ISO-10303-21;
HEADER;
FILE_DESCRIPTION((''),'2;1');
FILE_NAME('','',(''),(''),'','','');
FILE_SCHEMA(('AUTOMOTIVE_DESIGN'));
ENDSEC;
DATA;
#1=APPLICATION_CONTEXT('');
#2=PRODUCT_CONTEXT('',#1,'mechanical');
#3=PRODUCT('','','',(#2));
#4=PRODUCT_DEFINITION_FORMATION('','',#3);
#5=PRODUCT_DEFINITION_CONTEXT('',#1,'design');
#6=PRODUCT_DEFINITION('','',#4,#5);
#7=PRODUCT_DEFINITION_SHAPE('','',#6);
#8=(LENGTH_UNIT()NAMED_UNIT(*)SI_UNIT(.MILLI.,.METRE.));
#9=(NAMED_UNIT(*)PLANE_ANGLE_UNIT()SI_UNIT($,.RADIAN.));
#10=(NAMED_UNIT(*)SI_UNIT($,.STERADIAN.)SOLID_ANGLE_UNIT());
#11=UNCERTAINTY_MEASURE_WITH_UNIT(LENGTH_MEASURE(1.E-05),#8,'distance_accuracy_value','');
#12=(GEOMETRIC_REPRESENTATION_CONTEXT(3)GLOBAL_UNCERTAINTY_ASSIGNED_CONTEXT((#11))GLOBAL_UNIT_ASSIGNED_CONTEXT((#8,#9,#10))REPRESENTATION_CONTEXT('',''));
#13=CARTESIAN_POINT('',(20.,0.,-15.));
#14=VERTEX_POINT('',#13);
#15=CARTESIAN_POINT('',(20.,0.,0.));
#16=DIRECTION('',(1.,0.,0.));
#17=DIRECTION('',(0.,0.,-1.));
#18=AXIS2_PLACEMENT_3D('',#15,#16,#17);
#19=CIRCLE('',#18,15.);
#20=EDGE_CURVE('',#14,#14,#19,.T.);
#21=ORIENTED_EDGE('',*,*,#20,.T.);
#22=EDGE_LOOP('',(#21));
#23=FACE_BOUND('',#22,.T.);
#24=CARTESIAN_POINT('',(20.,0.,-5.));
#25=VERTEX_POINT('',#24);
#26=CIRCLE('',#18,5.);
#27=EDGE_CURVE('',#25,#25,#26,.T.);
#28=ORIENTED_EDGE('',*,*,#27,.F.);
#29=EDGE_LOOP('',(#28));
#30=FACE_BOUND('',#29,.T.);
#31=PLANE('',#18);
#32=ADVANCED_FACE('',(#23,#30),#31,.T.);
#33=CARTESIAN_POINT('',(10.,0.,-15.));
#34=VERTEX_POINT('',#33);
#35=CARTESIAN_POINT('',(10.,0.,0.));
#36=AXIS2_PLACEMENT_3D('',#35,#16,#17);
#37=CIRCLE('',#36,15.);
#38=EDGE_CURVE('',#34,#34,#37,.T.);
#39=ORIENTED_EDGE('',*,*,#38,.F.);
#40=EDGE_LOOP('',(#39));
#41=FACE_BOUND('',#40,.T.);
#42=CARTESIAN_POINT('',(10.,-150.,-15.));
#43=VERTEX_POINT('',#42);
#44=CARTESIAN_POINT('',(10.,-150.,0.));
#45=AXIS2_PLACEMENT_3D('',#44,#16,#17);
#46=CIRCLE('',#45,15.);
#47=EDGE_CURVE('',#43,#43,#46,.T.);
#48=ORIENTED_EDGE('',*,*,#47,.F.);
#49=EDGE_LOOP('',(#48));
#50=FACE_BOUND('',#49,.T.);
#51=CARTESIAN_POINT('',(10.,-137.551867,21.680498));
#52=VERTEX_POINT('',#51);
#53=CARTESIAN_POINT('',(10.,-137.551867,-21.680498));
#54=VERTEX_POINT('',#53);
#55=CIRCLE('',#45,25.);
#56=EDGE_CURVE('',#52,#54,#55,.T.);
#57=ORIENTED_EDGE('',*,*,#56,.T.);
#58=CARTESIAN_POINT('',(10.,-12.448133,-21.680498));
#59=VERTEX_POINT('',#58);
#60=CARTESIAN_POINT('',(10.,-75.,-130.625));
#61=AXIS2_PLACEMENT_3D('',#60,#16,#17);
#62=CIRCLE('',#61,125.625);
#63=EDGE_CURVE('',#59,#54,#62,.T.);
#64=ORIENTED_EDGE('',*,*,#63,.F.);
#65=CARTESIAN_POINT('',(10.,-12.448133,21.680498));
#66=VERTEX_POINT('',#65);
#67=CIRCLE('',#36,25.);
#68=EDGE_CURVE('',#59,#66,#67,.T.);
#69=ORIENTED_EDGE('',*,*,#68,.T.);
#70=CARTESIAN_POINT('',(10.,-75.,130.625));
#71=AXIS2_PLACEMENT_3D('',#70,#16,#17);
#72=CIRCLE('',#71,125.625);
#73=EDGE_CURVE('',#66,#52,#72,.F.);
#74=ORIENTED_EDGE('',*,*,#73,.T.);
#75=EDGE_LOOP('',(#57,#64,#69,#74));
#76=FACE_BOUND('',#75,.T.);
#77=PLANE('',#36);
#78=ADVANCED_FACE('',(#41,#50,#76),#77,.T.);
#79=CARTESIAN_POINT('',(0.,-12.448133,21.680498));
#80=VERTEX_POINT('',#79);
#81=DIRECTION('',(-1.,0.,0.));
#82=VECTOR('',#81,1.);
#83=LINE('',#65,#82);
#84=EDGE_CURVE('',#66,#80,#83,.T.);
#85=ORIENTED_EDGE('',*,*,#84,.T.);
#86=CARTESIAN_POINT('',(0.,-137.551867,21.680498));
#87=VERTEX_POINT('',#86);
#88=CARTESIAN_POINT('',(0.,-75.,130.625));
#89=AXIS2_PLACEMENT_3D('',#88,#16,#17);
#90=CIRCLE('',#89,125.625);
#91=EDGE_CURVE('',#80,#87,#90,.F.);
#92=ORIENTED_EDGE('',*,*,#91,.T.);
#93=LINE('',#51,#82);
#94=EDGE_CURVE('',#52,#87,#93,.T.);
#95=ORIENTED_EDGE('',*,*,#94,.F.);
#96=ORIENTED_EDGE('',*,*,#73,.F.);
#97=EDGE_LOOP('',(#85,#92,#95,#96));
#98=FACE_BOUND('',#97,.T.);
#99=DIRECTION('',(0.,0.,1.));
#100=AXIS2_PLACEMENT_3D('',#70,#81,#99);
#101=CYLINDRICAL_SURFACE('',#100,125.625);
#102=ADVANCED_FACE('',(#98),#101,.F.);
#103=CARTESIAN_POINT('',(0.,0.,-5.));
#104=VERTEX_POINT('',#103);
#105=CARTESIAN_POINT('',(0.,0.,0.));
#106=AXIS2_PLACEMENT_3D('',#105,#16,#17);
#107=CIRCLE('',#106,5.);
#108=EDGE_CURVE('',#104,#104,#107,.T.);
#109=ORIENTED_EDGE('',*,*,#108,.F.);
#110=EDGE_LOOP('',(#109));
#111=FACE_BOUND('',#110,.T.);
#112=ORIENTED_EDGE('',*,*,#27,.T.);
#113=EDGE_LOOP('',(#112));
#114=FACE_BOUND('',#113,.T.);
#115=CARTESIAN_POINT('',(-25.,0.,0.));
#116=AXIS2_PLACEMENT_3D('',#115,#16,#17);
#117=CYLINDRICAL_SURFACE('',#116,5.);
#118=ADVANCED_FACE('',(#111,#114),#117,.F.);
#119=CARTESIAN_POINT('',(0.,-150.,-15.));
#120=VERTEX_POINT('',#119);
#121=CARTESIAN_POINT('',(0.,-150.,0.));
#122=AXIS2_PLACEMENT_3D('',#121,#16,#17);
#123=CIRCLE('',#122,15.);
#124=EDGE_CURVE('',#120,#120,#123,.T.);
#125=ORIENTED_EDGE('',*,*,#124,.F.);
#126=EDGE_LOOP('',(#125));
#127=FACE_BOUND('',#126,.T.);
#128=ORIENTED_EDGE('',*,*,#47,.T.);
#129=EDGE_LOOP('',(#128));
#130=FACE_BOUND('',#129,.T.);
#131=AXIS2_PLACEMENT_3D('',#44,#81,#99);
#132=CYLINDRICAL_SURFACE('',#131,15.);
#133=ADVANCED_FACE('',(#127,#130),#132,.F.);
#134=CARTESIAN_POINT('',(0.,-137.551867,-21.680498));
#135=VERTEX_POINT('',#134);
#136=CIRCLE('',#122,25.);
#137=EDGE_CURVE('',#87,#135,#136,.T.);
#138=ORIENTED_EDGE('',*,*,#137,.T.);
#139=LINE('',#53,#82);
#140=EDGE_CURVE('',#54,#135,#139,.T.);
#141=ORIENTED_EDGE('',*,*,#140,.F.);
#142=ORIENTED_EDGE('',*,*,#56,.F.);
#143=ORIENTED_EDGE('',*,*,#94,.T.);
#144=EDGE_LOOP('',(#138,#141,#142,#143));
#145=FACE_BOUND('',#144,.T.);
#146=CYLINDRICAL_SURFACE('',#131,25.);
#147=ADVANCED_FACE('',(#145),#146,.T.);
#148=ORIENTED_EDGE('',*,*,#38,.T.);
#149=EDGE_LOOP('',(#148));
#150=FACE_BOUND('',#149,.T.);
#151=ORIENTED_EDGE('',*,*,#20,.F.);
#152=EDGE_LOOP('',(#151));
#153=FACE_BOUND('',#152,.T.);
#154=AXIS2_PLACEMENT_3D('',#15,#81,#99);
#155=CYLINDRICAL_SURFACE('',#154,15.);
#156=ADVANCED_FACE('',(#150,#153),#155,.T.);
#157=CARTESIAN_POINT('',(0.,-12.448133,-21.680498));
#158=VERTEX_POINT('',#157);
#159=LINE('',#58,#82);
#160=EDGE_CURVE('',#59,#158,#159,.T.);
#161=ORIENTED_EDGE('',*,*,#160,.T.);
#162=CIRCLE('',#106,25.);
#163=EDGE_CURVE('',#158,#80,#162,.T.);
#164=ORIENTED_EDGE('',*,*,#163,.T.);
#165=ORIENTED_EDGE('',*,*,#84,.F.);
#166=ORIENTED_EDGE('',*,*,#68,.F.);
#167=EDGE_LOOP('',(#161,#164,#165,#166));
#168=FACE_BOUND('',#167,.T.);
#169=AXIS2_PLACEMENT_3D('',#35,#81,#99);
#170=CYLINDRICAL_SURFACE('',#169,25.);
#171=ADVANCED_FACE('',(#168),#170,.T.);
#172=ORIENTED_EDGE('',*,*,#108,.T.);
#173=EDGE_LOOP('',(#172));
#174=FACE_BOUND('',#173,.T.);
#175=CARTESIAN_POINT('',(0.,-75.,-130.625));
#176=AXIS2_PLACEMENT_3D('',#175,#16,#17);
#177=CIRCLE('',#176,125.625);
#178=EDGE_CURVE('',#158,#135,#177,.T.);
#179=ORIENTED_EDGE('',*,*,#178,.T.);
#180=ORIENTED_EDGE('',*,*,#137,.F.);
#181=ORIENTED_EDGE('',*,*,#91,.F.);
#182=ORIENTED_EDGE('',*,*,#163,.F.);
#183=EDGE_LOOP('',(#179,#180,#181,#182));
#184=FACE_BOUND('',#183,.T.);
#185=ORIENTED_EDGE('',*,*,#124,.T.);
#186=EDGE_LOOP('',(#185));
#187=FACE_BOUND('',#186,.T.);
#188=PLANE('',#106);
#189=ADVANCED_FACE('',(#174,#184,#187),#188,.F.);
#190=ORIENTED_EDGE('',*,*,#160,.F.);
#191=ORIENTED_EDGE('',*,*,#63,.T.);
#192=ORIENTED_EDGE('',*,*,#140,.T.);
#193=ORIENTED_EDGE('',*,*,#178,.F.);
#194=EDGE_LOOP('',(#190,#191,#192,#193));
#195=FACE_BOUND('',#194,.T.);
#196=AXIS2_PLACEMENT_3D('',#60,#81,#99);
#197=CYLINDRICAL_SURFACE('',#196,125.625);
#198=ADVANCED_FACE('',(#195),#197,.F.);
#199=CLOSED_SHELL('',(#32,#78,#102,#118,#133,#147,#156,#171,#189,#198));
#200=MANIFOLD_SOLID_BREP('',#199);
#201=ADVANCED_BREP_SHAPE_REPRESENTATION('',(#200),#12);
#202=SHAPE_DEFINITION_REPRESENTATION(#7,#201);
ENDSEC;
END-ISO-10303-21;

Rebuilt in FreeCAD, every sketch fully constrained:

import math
import FreeCAD as App
import Part
import Sketcher
Q = App.Units.Quantity

doc = App.newDocument("Part")
body = doc.addObject("PartDesign::Body", "Body")

# Sketch on YZ plane
sketch1 = body.newObject("Sketcher::SketchObject", "Sketch")
sketch1.AttachmentSupport = (doc.getObject("YZ_Plane"), [""])
sketch1.MapMode = "FlatFace"
sketch1.addGeometry(Part.ArcOfCircle(Part.Circle(App.Vector(0, 0, 0), App.Vector(0, 0, 1), 25), math.radians(-119.862834), math.radians(119.862834)), False)
sketch1.addGeometry(Part.ArcOfCircle(Part.Circle(App.Vector(-75, 130.625, 0), App.Vector(0, 0, 1), 125.625), math.radians(-119.862834), math.radians(-60.137166)), False)
sketch1.addGeometry(Part.ArcOfCircle(Part.Circle(App.Vector(-150, 0, 0), App.Vector(0, 0, 1), 25), math.radians(60.137166), math.radians(299.862834)), False)
sketch1.addGeometry(Part.ArcOfCircle(Part.Circle(App.Vector(-75, -130.625, 0), App.Vector(0, 0, 1), 125.625), math.radians(60.137166), math.radians(119.862834)), False)
sketch1.addGeometry(Part.Circle(App.Vector(-150, 0, 0), App.Vector(0, 0, 1), 15), False)
sketch1.addConstraint(Sketcher.Constraint("Tangent", 0, 2, 1, 2))
sketch1.addConstraint(Sketcher.Constraint("Tangent", 1, 1, 2, 1))
sketch1.addConstraint(Sketcher.Constraint("Tangent", 2, 2, 3, 2))
sketch1.addConstraint(Sketcher.Constraint("Tangent", 3, 1, 0, 1))
sketch1.addConstraint(Sketcher.Constraint("Coincident", 0, 3, -1, 1))
sketch1.addConstraint(Sketcher.Constraint("Coincident", 4, 3, 2, 3))
sketch1.addConstraint(Sketcher.Constraint("Equal", 0, 2))
sketch1.addConstraint(Sketcher.Constraint("Equal", 1, 3))
sketch1.addConstraint(Sketcher.Constraint("PointOnObject", 2, 3, -1))
sketch1.addConstraint(Sketcher.Constraint("Diameter", 4, Q("30 mm")))
sketch1.addConstraint(Sketcher.Constraint("Radius", 0, Q("25 mm")))
sketch1.addConstraint(Sketcher.Constraint("DistanceX", 1, 3, -1, 1, Q("75 mm")))
sketch1.addConstraint(Sketcher.Constraint("Radius", 1, Q("125.625 mm")))
pad1 = body.newObject("PartDesign::Pad", "Pad")
pad1.Profile = sketch1
pad1.Length = 10

# Sketch on YZ plane
sketch2 = body.newObject("Sketcher::SketchObject", "Sketch001")
sketch2.AttachmentSupport = (doc.getObject("YZ_Plane"), [""])
sketch2.MapMode = "FlatFace"
sketch2.AttachmentOffset = App.Placement(App.Vector(0, 0, 10), App.Rotation())
sketch2.addGeometry(Part.Circle(App.Vector(0, 0, 0), App.Vector(0, 0, 1), 15), False)
sketch2.addConstraint(Sketcher.Constraint("Coincident", 0, 3, -1, 1))
sketch2.addConstraint(Sketcher.Constraint("Diameter", 0, Q("30 mm")))
pad2 = body.newObject("PartDesign::Pad", "Pad001")
pad2.Profile = sketch2
pad2.Length = 10

# Sketch on YZ plane
sketch3 = body.newObject("Sketcher::SketchObject", "Sketch002")
sketch3.AttachmentSupport = (doc.getObject("YZ_Plane"), [""])
sketch3.MapMode = "FlatFace"
sketch3.AttachmentOffset = App.Placement(App.Vector(0, 0, 20), App.Rotation())
sketch3.addGeometry(Part.Circle(App.Vector(0, 0, 0), App.Vector(0, 0, 1), 5), False)
sketch3.addConstraint(Sketcher.Constraint("Coincident", 0, 3, -1, 1))
sketch3.addConstraint(Sketcher.Constraint("Diameter", 0, Q("10 mm")))
pocket1 = body.newObject("PartDesign::Pocket", "Pocket")
pocket1.Profile = sketch3
pocket1.Length = 45

doc.recompute()
